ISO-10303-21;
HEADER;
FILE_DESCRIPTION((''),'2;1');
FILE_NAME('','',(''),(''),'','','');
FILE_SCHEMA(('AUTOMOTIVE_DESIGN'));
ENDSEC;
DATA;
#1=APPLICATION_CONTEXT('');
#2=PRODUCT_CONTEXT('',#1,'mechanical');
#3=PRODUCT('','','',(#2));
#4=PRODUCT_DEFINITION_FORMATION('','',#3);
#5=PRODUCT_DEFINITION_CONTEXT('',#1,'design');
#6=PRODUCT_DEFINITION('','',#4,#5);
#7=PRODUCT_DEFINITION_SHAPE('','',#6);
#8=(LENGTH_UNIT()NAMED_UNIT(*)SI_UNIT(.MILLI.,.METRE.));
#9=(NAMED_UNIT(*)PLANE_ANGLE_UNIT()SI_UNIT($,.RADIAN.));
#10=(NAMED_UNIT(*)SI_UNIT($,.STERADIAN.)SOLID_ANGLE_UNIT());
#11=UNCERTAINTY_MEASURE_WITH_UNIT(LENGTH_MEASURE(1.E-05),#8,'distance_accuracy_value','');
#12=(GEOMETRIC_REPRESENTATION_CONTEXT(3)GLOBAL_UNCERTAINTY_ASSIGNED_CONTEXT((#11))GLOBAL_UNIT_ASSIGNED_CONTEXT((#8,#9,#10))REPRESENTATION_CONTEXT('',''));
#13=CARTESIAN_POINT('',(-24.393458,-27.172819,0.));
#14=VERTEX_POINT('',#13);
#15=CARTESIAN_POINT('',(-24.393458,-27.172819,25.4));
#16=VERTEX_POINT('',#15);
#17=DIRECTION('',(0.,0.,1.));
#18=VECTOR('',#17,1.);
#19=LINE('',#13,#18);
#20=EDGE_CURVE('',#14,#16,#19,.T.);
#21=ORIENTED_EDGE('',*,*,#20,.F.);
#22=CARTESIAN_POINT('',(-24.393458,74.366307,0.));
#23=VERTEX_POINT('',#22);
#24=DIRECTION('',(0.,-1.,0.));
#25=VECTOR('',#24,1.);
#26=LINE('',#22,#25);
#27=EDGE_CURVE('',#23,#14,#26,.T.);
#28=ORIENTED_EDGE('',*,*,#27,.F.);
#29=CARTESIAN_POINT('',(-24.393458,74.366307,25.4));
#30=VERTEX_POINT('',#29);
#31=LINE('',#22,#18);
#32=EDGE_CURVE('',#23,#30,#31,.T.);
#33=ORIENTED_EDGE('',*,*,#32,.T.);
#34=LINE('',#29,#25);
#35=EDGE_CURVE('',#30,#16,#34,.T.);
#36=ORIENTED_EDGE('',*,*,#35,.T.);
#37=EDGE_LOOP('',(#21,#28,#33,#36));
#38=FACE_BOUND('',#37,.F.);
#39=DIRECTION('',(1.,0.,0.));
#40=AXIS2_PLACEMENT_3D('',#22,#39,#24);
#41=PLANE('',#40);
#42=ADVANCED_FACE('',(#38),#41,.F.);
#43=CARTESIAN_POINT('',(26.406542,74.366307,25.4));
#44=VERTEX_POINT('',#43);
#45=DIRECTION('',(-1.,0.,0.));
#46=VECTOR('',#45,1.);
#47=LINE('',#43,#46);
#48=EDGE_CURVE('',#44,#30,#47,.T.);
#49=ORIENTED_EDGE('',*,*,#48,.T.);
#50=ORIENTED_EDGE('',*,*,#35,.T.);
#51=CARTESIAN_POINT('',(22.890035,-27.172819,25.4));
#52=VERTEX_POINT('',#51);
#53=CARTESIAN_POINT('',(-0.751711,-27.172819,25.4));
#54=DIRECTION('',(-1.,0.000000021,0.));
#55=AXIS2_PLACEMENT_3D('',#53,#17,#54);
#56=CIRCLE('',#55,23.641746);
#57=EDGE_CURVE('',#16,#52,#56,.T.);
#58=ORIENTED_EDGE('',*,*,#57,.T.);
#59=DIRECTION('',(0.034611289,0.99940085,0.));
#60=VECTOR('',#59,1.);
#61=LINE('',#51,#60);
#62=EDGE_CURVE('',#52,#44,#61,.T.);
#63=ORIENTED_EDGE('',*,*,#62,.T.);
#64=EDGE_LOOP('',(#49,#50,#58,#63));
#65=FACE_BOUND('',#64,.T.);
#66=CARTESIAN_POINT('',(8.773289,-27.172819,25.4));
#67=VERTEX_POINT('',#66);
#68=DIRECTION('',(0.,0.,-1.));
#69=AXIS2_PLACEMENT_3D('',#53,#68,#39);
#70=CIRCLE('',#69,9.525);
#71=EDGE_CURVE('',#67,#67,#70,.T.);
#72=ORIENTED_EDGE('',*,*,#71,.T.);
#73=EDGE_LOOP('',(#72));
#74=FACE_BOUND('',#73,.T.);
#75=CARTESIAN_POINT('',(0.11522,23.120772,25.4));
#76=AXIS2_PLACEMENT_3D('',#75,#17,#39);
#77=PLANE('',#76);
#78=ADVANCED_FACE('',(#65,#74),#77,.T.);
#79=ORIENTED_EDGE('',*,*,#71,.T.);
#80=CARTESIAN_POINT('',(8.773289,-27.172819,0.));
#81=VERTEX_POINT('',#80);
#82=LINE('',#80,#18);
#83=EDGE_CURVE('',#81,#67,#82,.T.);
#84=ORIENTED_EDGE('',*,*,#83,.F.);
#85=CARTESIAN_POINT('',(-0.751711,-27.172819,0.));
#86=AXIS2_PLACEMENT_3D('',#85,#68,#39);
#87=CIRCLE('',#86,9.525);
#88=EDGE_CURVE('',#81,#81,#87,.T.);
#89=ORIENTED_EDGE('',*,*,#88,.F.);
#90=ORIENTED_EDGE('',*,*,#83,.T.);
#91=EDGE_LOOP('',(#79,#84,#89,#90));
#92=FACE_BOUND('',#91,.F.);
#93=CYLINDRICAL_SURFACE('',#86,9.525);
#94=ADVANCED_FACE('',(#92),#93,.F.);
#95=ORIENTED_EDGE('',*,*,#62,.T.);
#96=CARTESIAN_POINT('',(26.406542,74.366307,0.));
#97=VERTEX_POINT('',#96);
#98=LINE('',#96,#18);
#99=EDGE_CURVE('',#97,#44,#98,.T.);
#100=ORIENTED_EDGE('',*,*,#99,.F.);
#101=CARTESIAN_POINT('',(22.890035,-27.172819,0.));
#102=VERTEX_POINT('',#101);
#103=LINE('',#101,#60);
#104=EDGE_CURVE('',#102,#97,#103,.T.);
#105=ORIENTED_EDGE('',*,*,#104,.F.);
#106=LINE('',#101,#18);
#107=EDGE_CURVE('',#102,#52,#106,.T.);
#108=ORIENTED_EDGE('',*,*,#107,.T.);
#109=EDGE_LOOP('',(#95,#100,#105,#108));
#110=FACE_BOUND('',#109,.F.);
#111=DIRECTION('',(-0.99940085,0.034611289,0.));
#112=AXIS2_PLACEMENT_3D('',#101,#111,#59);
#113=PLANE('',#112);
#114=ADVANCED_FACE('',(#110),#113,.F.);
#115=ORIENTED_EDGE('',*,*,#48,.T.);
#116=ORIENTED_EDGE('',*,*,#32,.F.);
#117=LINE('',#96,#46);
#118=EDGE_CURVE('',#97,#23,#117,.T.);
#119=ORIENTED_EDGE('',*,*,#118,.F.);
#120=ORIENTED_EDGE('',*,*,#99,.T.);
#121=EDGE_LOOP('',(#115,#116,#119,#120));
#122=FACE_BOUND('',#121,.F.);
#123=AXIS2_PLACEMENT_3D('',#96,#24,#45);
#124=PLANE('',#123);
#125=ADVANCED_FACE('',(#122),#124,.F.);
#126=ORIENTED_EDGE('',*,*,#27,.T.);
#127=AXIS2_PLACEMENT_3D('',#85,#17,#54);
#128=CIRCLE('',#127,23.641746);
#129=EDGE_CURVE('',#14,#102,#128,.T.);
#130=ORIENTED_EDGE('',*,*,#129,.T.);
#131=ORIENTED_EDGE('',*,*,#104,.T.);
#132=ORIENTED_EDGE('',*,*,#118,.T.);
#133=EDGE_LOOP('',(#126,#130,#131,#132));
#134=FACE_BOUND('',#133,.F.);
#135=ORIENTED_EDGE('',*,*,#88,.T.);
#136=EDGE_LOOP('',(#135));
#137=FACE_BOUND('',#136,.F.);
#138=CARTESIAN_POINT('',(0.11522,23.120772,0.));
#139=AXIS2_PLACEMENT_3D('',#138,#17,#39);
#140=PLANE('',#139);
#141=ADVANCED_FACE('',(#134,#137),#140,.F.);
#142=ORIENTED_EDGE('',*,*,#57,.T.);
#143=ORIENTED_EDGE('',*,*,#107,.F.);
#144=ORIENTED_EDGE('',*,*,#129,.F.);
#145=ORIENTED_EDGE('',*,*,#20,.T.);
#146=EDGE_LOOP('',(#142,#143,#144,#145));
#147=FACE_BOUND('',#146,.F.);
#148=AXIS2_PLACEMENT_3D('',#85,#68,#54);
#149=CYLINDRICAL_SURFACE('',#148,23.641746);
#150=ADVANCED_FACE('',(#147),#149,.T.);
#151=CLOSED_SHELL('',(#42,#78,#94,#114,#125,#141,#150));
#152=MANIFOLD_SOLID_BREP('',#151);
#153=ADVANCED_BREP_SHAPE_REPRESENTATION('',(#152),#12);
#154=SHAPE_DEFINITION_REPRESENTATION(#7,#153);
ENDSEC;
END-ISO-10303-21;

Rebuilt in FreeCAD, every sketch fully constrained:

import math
import FreeCAD as App
import Part
import Sketcher
Q = App.Units.Quantity

doc = App.newDocument("Part")
params = doc.addObject("Spreadsheet::Sheet", "Params")
for row, (alias, value) in enumerate([
    ("sketch1_diameter", "0.75 in"),
    ("sketch1_width", "2 in"),
    ("sketch1_length", "4 in"),
    ("pad1_length", "1 in"),
], start=1):
    params.set(f"A{row}", alias)
    params.set(f"B{row}", "=" + value)
    params.setAlias(f"B{row}", alias)

body = doc.addObject("PartDesign::Body", "Body")

# Sketch on XY plane
sketch1 = body.newObject("Sketcher::SketchObject", "Sketch")
sketch1.AttachmentSupport = (doc.getObject("XY_Plane"), [""])
sketch1.MapMode = "FlatFace"
sketch1.addGeometry([
    Part.LineSegment(App.Vector(23, -27, 0), App.Vector(26, 74, 0)),  # 0
    Part.LineSegment(App.Vector(26, 74, 0), App.Vector(-24, 74, 0)),  # 1
    Part.LineSegment(App.Vector(-24, 74, 0), App.Vector(-24, -27, 0)),  # 2
    Part.ArcOfCircle(Part.Circle(App.Vector(-1, -27, 0), App.Vector(0, 0, 1), 24), math.radians(180), math.radians(360)),  # 3
    Part.Circle(App.Vector(-1, -27, 0), App.Vector(0, 0, 1), 10),  # 4
], False)
sketch1.addConstraint([
    Sketcher.Constraint("Coincident", 0, 2, 1, 1),
    Sketcher.Constraint("Coincident", 1, 2, 2, 1),
    Sketcher.Constraint("Tangent", 2, 2, 3, 1),
    Sketcher.Constraint("Coincident", 3, 2, 0, 1),
    Sketcher.Constraint("Horizontal", 1),
    Sketcher.Constraint("Vertical", 2),
    Sketcher.Constraint("Coincident", 4, 3, 3, 3),
    Sketcher.Constraint("Horizontal", 2, 2, 3, 2),
    Sketcher.Constraint("Diameter", 4, Q("0.75 in")),
    Sketcher.Constraint("DistanceX", 1, 2, 1, 1, Q("2 in")),
    Sketcher.Constraint("Distance", 0, Q("4 in")),
    Sketcher.Constraint("Radius", 3, 23.641746),
    Sketcher.Constraint("DistanceX", 3, 3, -1, 1, 0.751711),
    Sketcher.Constraint("DistanceY", 3, 3, -1, 1, 27.172819),
])
sketch1.setExpression("Constraints[8]", "Params.sketch1_diameter")
sketch1.setExpression("Constraints[9]", "Params.sketch1_width")
sketch1.setExpression("Constraints[10]", "Params.sketch1_length")
pad1 = body.newObject("PartDesign::Pad", "Pad")
pad1.Profile = sketch1
pad1.setExpression("Length", "Params.pad1_length")

doc.recompute()
